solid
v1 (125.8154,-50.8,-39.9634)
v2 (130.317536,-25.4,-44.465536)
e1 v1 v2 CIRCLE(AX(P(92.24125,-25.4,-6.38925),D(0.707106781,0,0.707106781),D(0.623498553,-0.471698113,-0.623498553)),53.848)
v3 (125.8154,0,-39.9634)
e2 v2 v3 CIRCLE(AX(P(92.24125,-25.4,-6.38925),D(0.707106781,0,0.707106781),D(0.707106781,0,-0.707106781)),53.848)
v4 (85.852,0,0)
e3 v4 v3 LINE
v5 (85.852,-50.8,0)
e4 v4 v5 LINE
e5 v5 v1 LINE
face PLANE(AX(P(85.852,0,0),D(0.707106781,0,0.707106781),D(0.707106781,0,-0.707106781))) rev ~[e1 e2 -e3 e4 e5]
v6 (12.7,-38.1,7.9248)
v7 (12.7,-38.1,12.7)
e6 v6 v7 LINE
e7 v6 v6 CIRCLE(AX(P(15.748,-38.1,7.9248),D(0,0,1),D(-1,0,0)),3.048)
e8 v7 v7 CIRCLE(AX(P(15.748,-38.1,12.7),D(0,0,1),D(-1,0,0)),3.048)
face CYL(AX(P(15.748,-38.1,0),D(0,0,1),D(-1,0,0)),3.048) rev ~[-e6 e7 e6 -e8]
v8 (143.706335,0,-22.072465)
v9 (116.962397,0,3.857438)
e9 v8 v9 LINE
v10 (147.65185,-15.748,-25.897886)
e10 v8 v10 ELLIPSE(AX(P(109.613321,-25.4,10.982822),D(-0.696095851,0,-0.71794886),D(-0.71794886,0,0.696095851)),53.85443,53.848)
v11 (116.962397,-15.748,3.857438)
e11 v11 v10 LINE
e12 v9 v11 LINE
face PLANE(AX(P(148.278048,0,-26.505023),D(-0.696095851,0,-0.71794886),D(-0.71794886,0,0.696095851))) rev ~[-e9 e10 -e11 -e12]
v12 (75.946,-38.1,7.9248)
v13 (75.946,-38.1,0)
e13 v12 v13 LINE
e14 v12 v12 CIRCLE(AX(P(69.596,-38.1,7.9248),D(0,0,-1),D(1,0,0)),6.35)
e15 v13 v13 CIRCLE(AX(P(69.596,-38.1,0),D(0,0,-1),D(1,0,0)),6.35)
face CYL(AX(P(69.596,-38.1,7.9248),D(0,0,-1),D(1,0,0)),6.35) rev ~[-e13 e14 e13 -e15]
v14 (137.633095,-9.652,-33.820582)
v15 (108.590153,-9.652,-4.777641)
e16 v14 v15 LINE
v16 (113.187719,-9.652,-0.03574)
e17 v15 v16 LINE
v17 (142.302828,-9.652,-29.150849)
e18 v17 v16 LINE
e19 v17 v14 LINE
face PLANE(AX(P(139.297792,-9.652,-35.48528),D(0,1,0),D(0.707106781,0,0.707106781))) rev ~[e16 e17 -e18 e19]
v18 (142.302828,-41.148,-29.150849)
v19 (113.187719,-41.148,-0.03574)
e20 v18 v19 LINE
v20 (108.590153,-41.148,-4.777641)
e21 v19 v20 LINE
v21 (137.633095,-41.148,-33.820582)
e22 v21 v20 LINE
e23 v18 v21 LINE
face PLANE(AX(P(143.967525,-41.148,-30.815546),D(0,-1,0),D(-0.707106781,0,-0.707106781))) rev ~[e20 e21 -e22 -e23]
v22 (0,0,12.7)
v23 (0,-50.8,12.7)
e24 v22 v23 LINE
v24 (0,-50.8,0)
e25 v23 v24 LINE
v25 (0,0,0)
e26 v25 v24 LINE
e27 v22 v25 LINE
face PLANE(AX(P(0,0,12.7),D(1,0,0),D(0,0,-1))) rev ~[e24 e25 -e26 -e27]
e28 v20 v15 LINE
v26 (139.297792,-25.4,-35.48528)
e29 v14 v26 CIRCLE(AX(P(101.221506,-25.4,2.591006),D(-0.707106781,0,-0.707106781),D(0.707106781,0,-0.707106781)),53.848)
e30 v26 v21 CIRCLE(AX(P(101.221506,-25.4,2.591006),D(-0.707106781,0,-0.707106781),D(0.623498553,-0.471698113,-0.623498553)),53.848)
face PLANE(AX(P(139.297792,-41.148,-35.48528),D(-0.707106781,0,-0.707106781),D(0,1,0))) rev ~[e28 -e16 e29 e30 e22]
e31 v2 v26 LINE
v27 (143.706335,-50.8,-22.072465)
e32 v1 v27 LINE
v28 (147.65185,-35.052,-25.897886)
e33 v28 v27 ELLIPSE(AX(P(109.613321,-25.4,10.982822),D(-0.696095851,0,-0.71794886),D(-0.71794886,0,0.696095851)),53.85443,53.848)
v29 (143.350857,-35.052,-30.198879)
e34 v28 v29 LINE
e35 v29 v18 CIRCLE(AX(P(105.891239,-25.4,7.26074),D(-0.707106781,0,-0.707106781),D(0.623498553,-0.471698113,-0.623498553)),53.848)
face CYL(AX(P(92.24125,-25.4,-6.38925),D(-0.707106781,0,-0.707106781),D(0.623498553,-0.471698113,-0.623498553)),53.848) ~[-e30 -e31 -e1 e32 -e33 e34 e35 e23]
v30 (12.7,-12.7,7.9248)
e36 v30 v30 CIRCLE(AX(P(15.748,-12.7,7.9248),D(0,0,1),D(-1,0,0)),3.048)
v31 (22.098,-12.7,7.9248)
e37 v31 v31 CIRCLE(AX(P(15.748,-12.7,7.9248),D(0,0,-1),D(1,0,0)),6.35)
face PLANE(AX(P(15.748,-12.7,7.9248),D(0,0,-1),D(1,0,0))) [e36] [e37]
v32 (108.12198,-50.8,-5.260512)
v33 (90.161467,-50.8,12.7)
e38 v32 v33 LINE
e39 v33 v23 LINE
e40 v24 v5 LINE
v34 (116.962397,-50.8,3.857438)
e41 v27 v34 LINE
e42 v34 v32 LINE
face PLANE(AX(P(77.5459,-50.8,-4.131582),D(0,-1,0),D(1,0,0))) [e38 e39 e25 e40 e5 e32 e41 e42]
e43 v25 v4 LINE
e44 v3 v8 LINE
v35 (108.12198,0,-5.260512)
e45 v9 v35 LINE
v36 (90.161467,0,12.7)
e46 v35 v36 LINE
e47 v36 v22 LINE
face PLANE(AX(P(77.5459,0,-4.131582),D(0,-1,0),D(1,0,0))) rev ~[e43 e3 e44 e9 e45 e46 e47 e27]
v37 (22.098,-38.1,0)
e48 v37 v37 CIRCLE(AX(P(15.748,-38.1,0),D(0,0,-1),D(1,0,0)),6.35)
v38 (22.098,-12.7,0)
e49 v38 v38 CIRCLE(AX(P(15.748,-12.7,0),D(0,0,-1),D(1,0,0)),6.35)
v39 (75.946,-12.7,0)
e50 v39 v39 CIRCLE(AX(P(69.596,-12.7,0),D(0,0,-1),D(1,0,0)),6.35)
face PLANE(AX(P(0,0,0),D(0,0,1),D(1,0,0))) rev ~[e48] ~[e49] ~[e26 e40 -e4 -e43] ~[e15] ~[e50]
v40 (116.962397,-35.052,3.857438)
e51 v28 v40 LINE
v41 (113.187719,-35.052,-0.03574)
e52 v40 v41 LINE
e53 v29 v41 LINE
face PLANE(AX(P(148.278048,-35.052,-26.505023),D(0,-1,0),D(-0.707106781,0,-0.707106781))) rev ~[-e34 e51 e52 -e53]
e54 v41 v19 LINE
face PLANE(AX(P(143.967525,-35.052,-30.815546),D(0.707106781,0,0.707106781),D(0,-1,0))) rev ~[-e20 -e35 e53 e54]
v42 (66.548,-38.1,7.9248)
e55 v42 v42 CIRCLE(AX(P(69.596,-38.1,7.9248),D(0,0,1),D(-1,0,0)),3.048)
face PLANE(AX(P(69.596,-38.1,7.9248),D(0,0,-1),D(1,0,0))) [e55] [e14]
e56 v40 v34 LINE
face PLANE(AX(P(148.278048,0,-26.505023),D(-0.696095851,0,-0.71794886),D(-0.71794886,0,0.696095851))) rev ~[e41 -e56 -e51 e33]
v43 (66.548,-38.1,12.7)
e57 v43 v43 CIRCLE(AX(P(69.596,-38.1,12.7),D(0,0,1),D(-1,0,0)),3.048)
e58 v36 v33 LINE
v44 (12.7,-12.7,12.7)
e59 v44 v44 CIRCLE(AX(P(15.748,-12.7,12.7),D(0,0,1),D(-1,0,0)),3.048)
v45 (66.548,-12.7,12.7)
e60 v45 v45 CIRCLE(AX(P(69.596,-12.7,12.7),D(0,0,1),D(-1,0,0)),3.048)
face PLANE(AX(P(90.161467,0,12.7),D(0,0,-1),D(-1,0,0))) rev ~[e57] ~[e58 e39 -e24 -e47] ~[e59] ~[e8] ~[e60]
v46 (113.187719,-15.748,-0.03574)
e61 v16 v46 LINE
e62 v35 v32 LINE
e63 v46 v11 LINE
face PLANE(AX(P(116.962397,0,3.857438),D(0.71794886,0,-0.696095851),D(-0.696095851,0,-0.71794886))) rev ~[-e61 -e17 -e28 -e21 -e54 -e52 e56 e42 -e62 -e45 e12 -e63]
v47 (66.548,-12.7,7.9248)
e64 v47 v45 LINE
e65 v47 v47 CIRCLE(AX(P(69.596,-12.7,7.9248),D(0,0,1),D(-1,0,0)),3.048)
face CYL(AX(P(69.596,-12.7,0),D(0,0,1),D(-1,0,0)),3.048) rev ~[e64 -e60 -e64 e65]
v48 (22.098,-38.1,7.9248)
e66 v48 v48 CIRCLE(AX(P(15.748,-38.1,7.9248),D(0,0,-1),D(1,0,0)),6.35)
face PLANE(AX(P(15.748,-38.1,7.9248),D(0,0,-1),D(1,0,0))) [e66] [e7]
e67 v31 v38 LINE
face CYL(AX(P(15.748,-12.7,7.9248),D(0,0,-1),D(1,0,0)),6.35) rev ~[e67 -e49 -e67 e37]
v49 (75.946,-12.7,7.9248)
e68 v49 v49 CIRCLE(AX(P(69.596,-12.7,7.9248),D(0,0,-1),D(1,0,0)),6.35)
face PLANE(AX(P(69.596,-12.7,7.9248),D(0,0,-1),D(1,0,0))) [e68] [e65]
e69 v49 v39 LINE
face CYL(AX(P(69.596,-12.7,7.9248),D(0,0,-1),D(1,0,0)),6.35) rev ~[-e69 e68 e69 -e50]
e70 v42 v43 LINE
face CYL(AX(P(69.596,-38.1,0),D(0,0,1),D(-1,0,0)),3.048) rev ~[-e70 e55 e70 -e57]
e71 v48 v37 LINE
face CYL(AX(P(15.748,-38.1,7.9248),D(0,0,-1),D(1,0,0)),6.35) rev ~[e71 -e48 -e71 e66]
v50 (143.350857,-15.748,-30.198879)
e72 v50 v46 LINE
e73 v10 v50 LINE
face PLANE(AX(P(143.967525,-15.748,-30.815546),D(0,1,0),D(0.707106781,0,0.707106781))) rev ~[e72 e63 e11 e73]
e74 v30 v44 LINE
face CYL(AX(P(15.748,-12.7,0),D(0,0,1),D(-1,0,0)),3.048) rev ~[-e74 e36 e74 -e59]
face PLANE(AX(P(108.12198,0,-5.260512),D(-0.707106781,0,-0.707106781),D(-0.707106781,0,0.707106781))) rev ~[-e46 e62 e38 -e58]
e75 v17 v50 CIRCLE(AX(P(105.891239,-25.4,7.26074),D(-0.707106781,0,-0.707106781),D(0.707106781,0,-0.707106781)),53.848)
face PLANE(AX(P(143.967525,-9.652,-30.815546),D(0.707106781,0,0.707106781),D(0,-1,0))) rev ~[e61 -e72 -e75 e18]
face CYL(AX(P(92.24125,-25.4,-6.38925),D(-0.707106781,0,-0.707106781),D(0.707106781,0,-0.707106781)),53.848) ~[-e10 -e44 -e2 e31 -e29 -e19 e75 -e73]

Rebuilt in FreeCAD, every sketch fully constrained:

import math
import FreeCAD as App
import Part
import Sketcher
from FreeCAD import Vector
Q = App.Units.Quantity

doc = App.newDocument("Part")
body = doc.addObject("PartDesign::Body", "Body")

# Sketch on XZ plane
sketch1 = body.newObject("Sketcher::SketchObject", "Sketch")
sketch1.AttachmentSupport = (doc.getObject("XZ_Plane"), [""])
sketch1.MapMode = "FlatFace"
sketch1.addGeometry([
    Part.LineSegment(Vector(0, 13, 0), Vector(0, 0, 0)),  # 0
    Part.LineSegment(Vector(0, 0, 0), Vector(86, 0, 0)),  # 1
    Part.LineSegment(Vector(86, 0, 0), Vector(130, -44, 0)),  # 2
    Part.LineSegment(Vector(130, -44, 0), Vector(148, -27, 0)),  # 3
    Part.LineSegment(Vector(148, -27, 0), Vector(117, 4, 0)),  # 4
    Part.LineSegment(Vector(117, 4, 0), Vector(108, -5, 0)),  # 5
    Part.LineSegment(Vector(108, -5, 0), Vector(90, 13, 0)),  # 6
    Part.LineSegment(Vector(90, 13, 0), Vector(0, 13, 0)),  # 7
], False)
sketch1.addConstraint([
    Sketcher.Constraint("Coincident", 0, 2, 1, 1),
    Sketcher.Constraint("Coincident", 1, 2, 2, 1),
    Sketcher.Constraint("Coincident", 2, 2, 3, 1),
    Sketcher.Constraint("Coincident", 3, 2, 4, 1),
    Sketcher.Constraint("Coincident", 4, 2, 5, 1),
    Sketcher.Constraint("Coincident", 5, 2, 6, 1),
    Sketcher.Constraint("Coincident", 6, 2, 7, 1),
    Sketcher.Constraint("Coincident", 7, 2, 0, 1),
    Sketcher.Constraint("Vertical", 0),
    Sketcher.Constraint("Horizontal", 1),
    Sketcher.Constraint("Horizontal", 7),
    Sketcher.Constraint("Coincident", 0, 2, -1, 1),
    Sketcher.Constraint("Perpendicular", 2, 3),
    Sketcher.Constraint("Perpendicular", 4, 5),
    Sketcher.Constraint("Perpendicular", 3, 6),
    Sketcher.Constraint("Equal", 3, 6),
    Sketcher.Constraint("Distance", 3, Q("1 in")),
    Sketcher.Constraint("DistanceY", 0, 2, 0, 1, Q("0.5 in")),
    Sketcher.Constraint("Angle", 2, Q("-45 deg")),
    Sketcher.Constraint("Distance", 5, Q("0.5 in")),
    Sketcher.Constraint("DistanceX", 1, 1, 1, 2, Q("3.38 in")),
    Sketcher.Constraint("Distance", 4, Q("43.61822 mm")),
    Sketcher.Constraint("DistanceX", 7, 2, 7, 1, Q("90.161467 mm")),
])
pad1 = body.newObject("PartDesign::Pad", "Pad")
pad1.Profile = sketch1
pad1.Length = Q("2 in")

# Sketch on XY plane
sketch2 = body.newObject("Sketcher::SketchObject", "Sketch001")
sketch2.AttachmentSupport = (doc.getObject("XY_Plane"), [""])
sketch2.MapMode = "FlatFace"
sketch2.addGeometry([
    Part.Circle(Vector(15.7, -38.1, 0), Vector(0, 0, 1), 3),
    Part.Circle(Vector(15.7, -12.7, 0), Vector(0, 0, 1), 3),
    Part.Circle(Vector(69.6, -12.7, 0), Vector(0, 0, 1), 3),
    Part.Circle(Vector(69.6, -38.1, 0), Vector(0, 0, 1), 3),
], False)
sketch2.addConstraint([
    Sketcher.Constraint("Equal", 0, 1),
    Sketcher.Constraint("Equal", 1, 2),
    Sketcher.Constraint("Equal", 2, 3),
    Sketcher.Constraint("Horizontal", 1, 3, 2, 3),
    Sketcher.Constraint("Horizontal", 0, 3, 3, 3),
    Sketcher.Constraint("Vertical", 0, 3, 1, 3),
    Sketcher.Constraint("Vertical", 2, 3, 3, 3),
    Sketcher.Constraint("Diameter", 0, Q("0.24 in")),
    Sketcher.Constraint("DistanceY", 0, 3, 1, 3, Q("1 in")),
    Sketcher.Constraint("DistanceY", 0, 3, -1, 1, Q("1.5 in")),
    Sketcher.Constraint("DistanceX", -1, 1, 0, 3, Q("0.62 in")),
    Sketcher.Constraint("DistanceX", -1, 1, 2, 3, Q("2.74 in")),
])
doc.recompute()
hole = body.newObject("PartDesign::Hole", "Hole")
hole.Profile = sketch2
hole.ThreadType = "None"
hole.Diameter = Q("0.24 in")
hole.DepthType = "ThroughAll"
hole.HoleCutType = "Counterbore"
hole.HoleCutDiameter = Q("0.5 in")
hole.HoleCutDepth = Q("0.312 in")
hole.Reversed = True

# Sketch on an angled plane
sketch3 = body.newObject("Sketcher::SketchObject", "Sketch002")
sketch3.Placement = App.Placement(Vector(87.391536, 0, -87.391536), App.Rotation(Vector(0, 1, 0), Vector(0.707106781, 0, 0.707106781), Vector(0.707106781, 0, -0.707106781), "ZXY"))
sketch3.addGeometry([
    Part.LineSegment(Vector(-16, 86, 0), Vector(-35, 86, 0)),  # 0
    Part.LineSegment(Vector(-35, 86, 0), Vector(-35, 80, 0)),  # 1
    Part.LineSegment(Vector(-35, 80, 0), Vector(-41, 80, 0)),  # 2
    Part.LineSegment(Vector(-41, 80, 0), Vector(-41, 73, 0)),  # 3
    Part.LineSegment(Vector(-41, 73, 0), Vector(-10, 73, 0)),  # 4
    Part.LineSegment(Vector(-10, 73, 0), Vector(-10, 80, 0)),  # 5
    Part.LineSegment(Vector(-10, 80, 0), Vector(-16, 80, 0)),  # 6
    Part.LineSegment(Vector(-16, 80, 0), Vector(-16, 86, 0)),  # 7
], False)
sketch3.addConstraint([
    Sketcher.Constraint("Coincident", 0, 2, 1, 1),
    Sketcher.Constraint("Coincident", 1, 2, 2, 1),
    Sketcher.Constraint("Coincident", 2, 2, 3, 1),
    Sketcher.Constraint("Coincident", 3, 2, 4, 1),
    Sketcher.Constraint("Coincident", 4, 2, 5, 1),
    Sketcher.Constraint("Coincident", 5, 2, 6, 1),
    Sketcher.Constraint("Coincident", 6, 2, 7, 1),
    Sketcher.Constraint("Coincident", 7, 2, 0, 1),
    Sketcher.Constraint("Horizontal", 0),
    Sketcher.Constraint("Vertical", 1),
    Sketcher.Constraint("Horizontal", 2),
    Sketcher.Constraint("Vertical", 3),
    Sketcher.Constraint("Horizontal", 4),
    Sketcher.Constraint("Vertical", 5),
    Sketcher.Constraint("Horizontal", 6),
    Sketcher.Constraint("Vertical", 7),
    Sketcher.Constraint("Horizontal", 2, 2, 5, 2),
    Sketcher.Constraint("Equal", 2, 6),
    Sketcher.Constraint("Equal", 6, 1),
    Sketcher.Constraint("DistanceX", 1, 2, 4, 2, Q("1 in")),
    Sketcher.Constraint("DistanceX", 0, 2, 0, 1, Q("0.76 in")),
    Sketcher.Constraint("DistanceY", 3, 2, 3, 1, Q("0.26 in")),
    Sketcher.Constraint("DistanceX", 0, 2, -1, 1, Q("1.38 in")),
    Sketcher.Constraint("DistanceY", -1, 1, 0, 2, Q("86.106531 mm")),
])
pocket1 = body.newObject("PartDesign::Pocket", "Pocket")
pocket1.Profile = sketch3
pocket1.Type = "ThroughAll"

# Sketch on an angled plane
sketch4 = body.newObject("Sketcher::SketchObject", "Sketch003")
sketch4.Placement = App.Placement(Vector(42.926, 0, 42.926), App.Rotation(Vector(0, -1, 0), Vector(-0.707106781, 0, 0.707106781), Vector(-0.707106781, 0, -0.707106781), "ZXY"))
sketch4.addGeometry([
    Part.ArcOfCircle(Part.Circle(Vector(25, -70, 0), Vector(0, 0, 1), 54), math.radians(-118), math.radians(-90)),  # 0
    Part.LineSegment(Vector(0, -117, 0), Vector(0, -124, 0)),  # 1
    Part.LineSegment(Vector(0, -124, 0), Vector(25, -124, 0)),  # 2
    Part.ArcOfCircle(Part.Circle(Vector(25, -70, 0), Vector(0, 0, 1), 54), math.radians(-90), math.radians(-62)),  # 3
    Part.LineSegment(Vector(25, -124, 0), Vector(51, -124, 0)),  # 4
    Part.LineSegment(Vector(51, -124, 0), Vector(51, -117, 0)),  # 5
], False)
sketch4.addConstraint([
    Sketcher.Constraint("Coincident", 0, 1, 1, 1),
    Sketcher.Constraint("Coincident", 1, 2, 2, 1),
    Sketcher.Constraint("Tangent", 2, 2, 0, 2),
    Sketcher.Constraint("Tangent", 3, 1, 4, 1),
    Sketcher.Constraint("Coincident", 4, 2, 5, 1),
    Sketcher.Constraint("Coincident", 5, 2, 3, 2),
    Sketcher.Constraint("Vertical", 1),
    Sketcher.Constraint("Horizontal", 2),
    Sketcher.Constraint("Horizontal", 4),
    Sketcher.Constraint("Vertical", 5),
    Sketcher.Constraint("Coincident", 3, 3, 0, 3),
    Sketcher.Constraint("Equal", 0, 3),
    Sketcher.Constraint("PointOnObject", 0, 1, -2),
    Sketcher.Constraint("Horizontal", 0, 1, 5, 2),
    Sketcher.Constraint("DistanceX", 2, 1, 2, 2, Q("1 in")),
    Sketcher.Constraint("Radius", 0, Q("2.12 in")),
    Sketcher.Constraint("DistanceY", 0, 3, -1, 1, Q("69.742295 mm")),
])
pocket2 = body.newObject("PartDesign::Pocket", "Pocket001")
pocket2.Profile = sketch4
pocket2.Type = "ThroughAll"

doc.recompute()
